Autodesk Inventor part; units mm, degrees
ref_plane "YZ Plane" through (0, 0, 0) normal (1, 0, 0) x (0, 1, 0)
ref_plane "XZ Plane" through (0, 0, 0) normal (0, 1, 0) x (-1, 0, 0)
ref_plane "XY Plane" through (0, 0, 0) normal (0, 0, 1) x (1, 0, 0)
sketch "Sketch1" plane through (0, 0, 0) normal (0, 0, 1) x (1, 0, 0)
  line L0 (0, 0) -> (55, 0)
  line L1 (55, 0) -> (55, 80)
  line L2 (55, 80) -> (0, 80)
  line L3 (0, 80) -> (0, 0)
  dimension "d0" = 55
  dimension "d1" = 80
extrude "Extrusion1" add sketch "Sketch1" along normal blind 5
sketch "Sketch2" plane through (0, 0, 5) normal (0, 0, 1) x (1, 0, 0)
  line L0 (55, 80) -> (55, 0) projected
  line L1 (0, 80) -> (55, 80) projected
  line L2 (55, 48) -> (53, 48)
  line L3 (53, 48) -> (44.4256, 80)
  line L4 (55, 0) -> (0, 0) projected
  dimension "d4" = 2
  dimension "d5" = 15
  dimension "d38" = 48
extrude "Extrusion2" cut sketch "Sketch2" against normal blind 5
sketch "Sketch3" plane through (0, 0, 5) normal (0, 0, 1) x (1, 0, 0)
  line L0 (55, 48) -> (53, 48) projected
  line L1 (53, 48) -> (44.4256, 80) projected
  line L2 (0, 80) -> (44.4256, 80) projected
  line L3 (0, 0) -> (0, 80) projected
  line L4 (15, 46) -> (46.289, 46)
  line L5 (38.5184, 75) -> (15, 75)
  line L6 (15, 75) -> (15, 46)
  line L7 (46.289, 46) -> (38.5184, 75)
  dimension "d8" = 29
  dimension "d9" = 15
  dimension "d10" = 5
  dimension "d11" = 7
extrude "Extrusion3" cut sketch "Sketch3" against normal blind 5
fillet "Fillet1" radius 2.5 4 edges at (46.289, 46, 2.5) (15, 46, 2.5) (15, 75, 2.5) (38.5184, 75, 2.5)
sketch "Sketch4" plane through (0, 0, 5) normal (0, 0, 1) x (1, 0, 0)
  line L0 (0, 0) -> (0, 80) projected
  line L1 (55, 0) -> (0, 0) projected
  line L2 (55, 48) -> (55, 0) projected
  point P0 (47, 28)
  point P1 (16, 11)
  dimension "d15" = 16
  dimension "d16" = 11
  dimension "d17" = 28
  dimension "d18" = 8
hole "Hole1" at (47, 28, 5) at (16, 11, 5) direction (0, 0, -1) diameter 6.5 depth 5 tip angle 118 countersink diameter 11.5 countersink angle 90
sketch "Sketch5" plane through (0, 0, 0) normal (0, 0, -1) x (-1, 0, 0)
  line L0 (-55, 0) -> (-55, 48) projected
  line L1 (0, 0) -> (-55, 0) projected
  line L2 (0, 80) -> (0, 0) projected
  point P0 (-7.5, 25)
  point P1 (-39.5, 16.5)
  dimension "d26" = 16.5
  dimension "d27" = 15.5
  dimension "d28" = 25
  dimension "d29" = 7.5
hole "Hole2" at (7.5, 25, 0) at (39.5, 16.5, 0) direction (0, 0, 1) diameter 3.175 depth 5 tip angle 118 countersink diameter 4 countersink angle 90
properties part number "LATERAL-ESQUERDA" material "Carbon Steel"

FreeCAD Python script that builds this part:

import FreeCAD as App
import Part
import Sketcher
from FreeCAD import Vector
Q = App.Units.Quantity


def edges_at(feature, points):
    """Names of the edges that pass closest to the given points."""
    edges = feature.Shape.Edges
    near = lambda p: min(range(len(edges)), key=lambda i: edges[i].distToShape(Part.Vertex(*p))[0])
    return sorted({f"Edge{near(p) + 1}" for p in points})

doc = App.newDocument("Part")
params = doc.addObject("Spreadsheet::Sheet", "Params")
for row, (alias, value) in enumerate([
    ("sketch1_width", "55 mm"),
    ("sketch1_height", "80 mm"),
    ("pad1_length", "5 mm"),
    ("sketch2_width", "2 mm"),
    ("sketch2_height", "32 mm"),
    ("pocket1_length", "5 mm"),
    ("sketch3_height", "29 mm"),
    ("pocket2_length", "5 mm"),
    ("fillet_radius", "2.5 mm"),
    ("sketch4_diameter", "6.5 mm"),
    ("hole_diameter", "6.5 mm"),
    ("hole_depth", "5 mm"),
    ("hole_csink_diameter", "11.5 mm"),
    ("hole2_diameter", "3.175 mm"),
    ("hole2_depth", "5 mm"),
    ("hole2_csink_diameter", "4 mm"),
], start=1):
    params.set(f"A{row}", alias)
    params.set(f"B{row}", "=" + value)
    params.setAlias(f"B{row}", alias)

body = doc.addObject("PartDesign::Body", "Body")

# Sketch on XY plane
sketch1 = body.newObject("Sketcher::SketchObject", "Sketch")
sketch1.AttachmentSupport = (doc.getObject("XY_Plane"), [""])
sketch1.MapMode = "FlatFace"
sketch1.addGeometry(Part.LineSegment(Vector(0, 80, 0), Vector(0, 0, 0)), False)
sketch1.addGeometry(Part.LineSegment(Vector(0, 0, 0), Vector(55, 0, 0)), False)
sketch1.addGeometry(Part.LineSegment(Vector(55, 0, 0), Vector(55, 80, 0)), False)
sketch1.addGeometry(Part.LineSegment(Vector(55, 80, 0), Vector(0, 80, 0)), False)
sketch1.addConstraint(Sketcher.Constraint("Coincident", 0, 2, 1, 1))
sketch1.addConstraint(Sketcher.Constraint("Coincident", 1, 2, 2, 1))
sketch1.addConstraint(Sketcher.Constraint("Coincident", 2, 2, 3, 1))
sketch1.addConstraint(Sketcher.Constraint("Coincident", 3, 2, 0, 1))
sketch1.addConstraint(Sketcher.Constraint("Vertical", 0))
sketch1.addConstraint(Sketcher.Constraint("Horizontal", 1))
sketch1.addConstraint(Sketcher.Constraint("Vertical", 2))
sketch1.addConstraint(Sketcher.Constraint("Horizontal", 3))
sketch1.addConstraint(Sketcher.Constraint("Coincident", 0, 2, -1, 1))
sketch1.addConstraint(Sketcher.Constraint("DistanceX", 1, 1, 1, 2, 55.0))
sketch1.addConstraint(Sketcher.Constraint("DistanceY", 0, 2, 0, 1, 80.0))
sketch1.setExpression("Constraints[9]", "Params.sketch1_width")
sketch1.setExpression("Constraints[10]", "Params.sketch1_height")
pad1 = body.newObject("PartDesign::Pad", "Pad")
pad1.Profile = sketch1
pad1.setExpression("Length", "Params.pad1_length")

# Sketch on XY plane
sketch2 = body.newObject("Sketcher::SketchObject", "Sketch001")
sketch2.AttachmentSupport = (doc.getObject("XY_Plane"), [""])
sketch2.MapMode = "FlatFace"
sketch2.AttachmentOffset = App.Placement(Vector(0, 0, 5), App.Rotation())
sketch2.addGeometry(Part.LineSegment(Vector(55, 48, 0), Vector(55, 80, 0)), False)
sketch2.addGeometry(Part.LineSegment(Vector(55, 80, 0), Vector(44.4, 80, 0)), False)
sketch2.addGeometry(Part.LineSegment(Vector(44.4, 80, 0), Vector(53, 48, 0)), False)
sketch2.addGeometry(Part.LineSegment(Vector(53, 48, 0), Vector(55, 48, 0)), False)
sketch2.addConstraint(Sketcher.Constraint("Coincident", 0, 2, 1, 1))
sketch2.addConstraint(Sketcher.Constraint("Coincident", 1, 2, 2, 1))
sketch2.addConstraint(Sketcher.Constraint("Coincident", 2, 2, 3, 1))
sketch2.addConstraint(Sketcher.Constraint("Coincident", 3, 2, 0, 1))
sketch2.addConstraint(Sketcher.Constraint("Vertical", 0))
sketch2.addConstraint(Sketcher.Constraint("Horizontal", 1))
sketch2.addConstraint(Sketcher.Constraint("Horizontal", 3))
sketch2.addConstraint(Sketcher.Constraint("DistanceX", 3, 1, 3, 2, 2.0))
sketch2.addConstraint(Sketcher.Constraint("DistanceY", -1, 1, 2, 2, 48.0))
sketch2.addConstraint(Sketcher.Constraint("DistanceY", 0, 1, 0, 2, 32.0))
sketch2.addConstraint(Sketcher.Constraint("Angle", 2, Q("-75 deg")))
sketch2.addConstraint(Sketcher.Constraint("DistanceX", -1, 1, 0, 2, 55.0))
sketch2.setExpression("Constraints[7]", "Params.sketch2_width")
sketch2.setExpression("Constraints[9]", "Params.sketch2_height")
pocket1 = body.newObject("PartDesign::Pocket", "Pocket")
pocket1.Profile = sketch2
pocket1.setExpression("Length", "Params.pocket1_length")

# Sketch on XY plane
sketch3 = body.newObject("Sketcher::SketchObject", "Sketch002")
sketch3.AttachmentSupport = (doc.getObject("XY_Plane"), [""])
sketch3.MapMode = "FlatFace"
sketch3.AttachmentOffset = App.Placement(Vector(0, 0, 5), App.Rotation())
sketch3.addGeometry(Part.LineSegment(Vector(15, 75, 0), Vector(15, 46, 0)), False)
sketch3.addGeometry(Part.LineSegment(Vector(15, 46, 0), Vector(46, 46, 0)), False)
sketch3.addGeometry(Part.LineSegment(Vector(46, 46, 0), Vector(39, 75, 0)), False)
sketch3.addGeometry(Part.LineSegment(Vector(39, 75, 0), Vector(15, 75, 0)), False)
sketch3.addConstraint(Sketcher.Constraint("Coincident", 0, 2, 1, 1))
sketch3.addConstraint(Sketcher.Constraint("Coincident", 1, 2, 2, 1))
sketch3.addConstraint(Sketcher.Constraint("Coincident", 2, 2, 3, 1))
sketch3.addConstraint(Sketcher.Constraint("Coincident", 3, 2, 0, 1))
sketch3.addConstraint(Sketcher.Constraint("Vertical", 0))
sketch3.addConstraint(Sketcher.Constraint("Horizontal", 1))
sketch3.addConstraint(Sketcher.Constraint("Horizontal", 3))
sketch3.addConstraint(Sketcher.Constraint("DistanceY", 0, 2, 0, 1, 29.0))
sketch3.addConstraint(Sketcher.Constraint("DistanceX", -1, 1, 0, 2, 15.0))
sketch3.addConstraint(Sketcher.Constraint("Angle", 2, Q("105.0001 deg")))
sketch3.addConstraint(Sketcher.Constraint("DistanceY", -1, 1, 0, 2, 46.0))
sketch3.addConstraint(Sketcher.Constraint("DistanceX", 1, 1, 1, 2, 31.289))
sketch3.setExpression("Constraints[7]", "Params.sketch3_height")
pocket2 = body.newObject("PartDesign::Pocket", "Pocket001")
pocket2.Profile = sketch3
pocket2.setExpression("Length", "Params.pocket2_length")
doc.recompute()

fillet = body.newObject("PartDesign::Fillet", "Fillet")
fillet.Base = (pocket2, edges_at(pocket2, [
    (46.289, 46, 2.5),
    (15, 46, 2.5),
    (15, 75, 2.5),
    (38.518, 75, 2.5),
]))
fillet.setExpression("Radius", "Params.fillet_radius")

# Sketch on XY plane
sketch4 = body.newObject("Sketcher::SketchObject", "Sketch003")
sketch4.AttachmentSupport = (doc.getObject("XY_Plane"), [""])
sketch4.MapMode = "FlatFace"
sketch4.AttachmentOffset = App.Placement(Vector(0, 0, 5), App.Rotation())
sketch4.addGeometry(Part.Circle(Vector(47, 28, 0), Vector(0, 0, 1), 3.2), False)
sketch4.addGeometry(Part.Circle(Vector(16, 11, 0), Vector(0, 0, 1), 3.2), False)
sketch4.addConstraint(Sketcher.Constraint("Equal", 0, 1))
sketch4.addConstraint(Sketcher.Constraint("Diameter", 0, 6.5))
sketch4.addConstraint(Sketcher.Constraint("DistanceX", -1, 1, 0, 3, 47.0))
sketch4.addConstraint(Sketcher.Constraint("DistanceY", -1, 1, 0, 3, 28.0))
sketch4.addConstraint(Sketcher.Constraint("DistanceX", -1, 1, 1, 3, 16.0))
sketch4.addConstraint(Sketcher.Constraint("DistanceY", -1, 1, 1, 3, 11.0))
sketch4.setExpression("Constraints[1]", "Params.sketch4_diameter")
doc.recompute()
hole = body.newObject("PartDesign::Hole", "Hole")
hole.Profile = sketch4
hole.ThreadType = "None"
hole.setExpression("Diameter", "Params.hole_diameter")
hole.DepthType = "Dimension"
hole.setExpression("Depth", "Params.hole_depth")
hole.DrillPoint = "Angled"
hole.DrillPointAngle = 118
hole.HoleCutType = "Countersink"
hole.setExpression("HoleCutDiameter", "Params.hole_csink_diameter")
hole.HoleCutCountersinkAngle = 90

# Sketch on XY plane
sketch5 = body.newObject("Sketcher::SketchObject", "Sketch004")
sketch5.AttachmentSupport = (doc.getObject("XY_Plane"), [""])
sketch5.MapMode = "FlatFace"
sketch5.addGeometry(Part.Circle(Vector(7.5, 25, 0), Vector(0, 0, 1), 1.6), False)
sketch5.addGeometry(Part.Circle(Vector(39.5, 16.5, 0), Vector(0, 0, 1), 1.6), False)
sketch5.addConstraint(Sketcher.Constraint("Equal", 0, 1))
sketch5.addConstraint(Sketcher.Constraint("Diameter", 0, 3.175))
sketch5.addConstraint(Sketcher.Constraint("DistanceY", -1, 1, 0, 3, 25.0))
sketch5.addConstraint(Sketcher.Constraint("DistanceX", 0, 3, 1, 3, 32.0))
sketch5.addConstraint(Sketcher.Constraint("DistanceX", -1, 1, 0, 3, 7.5))
sketch5.addConstraint(Sketcher.Constraint("DistanceY", -1, 1, 1, 3, 16.5))
doc.recompute()
hole2 = body.newObject("PartDesign::Hole", "Hole001")
hole2.Profile = sketch5
hole2.ThreadType = "None"
hole2.setExpression("Diameter", "Params.hole2_diameter")
hole2.DepthType = "Dimension"
hole2.setExpression("Depth", "Params.hole2_depth")
hole2.DrillPoint = "Angled"
hole2.DrillPointAngle = 118
hole2.HoleCutType = "Countersink"
hole2.setExpression("HoleCutDiameter", "Params.hole2_csink_diameter")
hole2.HoleCutCountersinkAngle = 90
hole2.Reversed = True

doc.recompute()
